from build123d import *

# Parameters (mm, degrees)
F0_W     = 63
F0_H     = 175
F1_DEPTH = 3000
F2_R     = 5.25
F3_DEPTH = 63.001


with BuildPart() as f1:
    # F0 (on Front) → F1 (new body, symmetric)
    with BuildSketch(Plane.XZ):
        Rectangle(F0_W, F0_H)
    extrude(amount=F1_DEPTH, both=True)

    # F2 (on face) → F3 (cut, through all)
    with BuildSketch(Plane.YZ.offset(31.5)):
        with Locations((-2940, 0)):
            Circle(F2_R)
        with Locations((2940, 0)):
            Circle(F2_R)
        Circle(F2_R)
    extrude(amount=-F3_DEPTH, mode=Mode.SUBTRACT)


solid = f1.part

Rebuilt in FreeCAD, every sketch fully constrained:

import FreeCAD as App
import Part
import Sketcher
from FreeCAD import Vector

doc = App.newDocument("Part")
body = doc.addObject("PartDesign::Body", "Body")

sketch1 = body.newObject("Sketcher::SketchObject", "Sketch")
sketch1.AttachmentSupport = (doc.getObject("XZ_Plane"), [""])
sketch1.MapMode = "FlatFace"
sketch1.addGeometry(Part.LineSegment(Vector(-32, 88, 0), Vector(-32, -88, 0)), False)
sketch1.addGeometry(Part.LineSegment(Vector(-32, -88, 0), Vector(32, -88, 0)), False)
sketch1.addGeometry(Part.LineSegment(Vector(32, -88, 0), Vector(32, 88, 0)), False)
sketch1.addGeometry(Part.LineSegment(Vector(32, 88, 0), Vector(-32, 88, 0)), False)
sketch1.addConstraint(Sketcher.Constraint("Coincident", 0, 2, 1, 1))
sketch1.addConstraint(Sketcher.Constraint("Coincident", 1, 2, 2, 1))
sketch1.addConstraint(Sketcher.Constraint("Coincident", 2, 2, 3, 1))
sketch1.addConstraint(Sketcher.Constraint("Coincident", 3, 2, 0, 1))
sketch1.addConstraint(Sketcher.Constraint("Vertical", 0))
sketch1.addConstraint(Sketcher.Constraint("Horizontal", 1))
sketch1.addConstraint(Sketcher.Constraint("Vertical", 2))
sketch1.addConstraint(Sketcher.Constraint("Horizontal", 3))
sketch1.addConstraint(Sketcher.Constraint("Symmetric", 0, 2, 2, 2, -1, 1))
sketch1.addConstraint(Sketcher.Constraint("DistanceX", 1, 1, 1, 2, 63.0))
sketch1.addConstraint(Sketcher.Constraint("DistanceY", 0, 2, 0, 1, 175.0))
pad1 = body.newObject("PartDesign::Pad", "Pad")
pad1.Profile = sketch1
pad1.Length = 6000
pad1.Midplane = True

sketch2 = body.newObject("Sketcher::SketchObject", "Sketch001")
sketch2.AttachmentSupport = (doc.getObject("YZ_Plane"), [""])
sketch2.MapMode = "FlatFace"
sketch2.AttachmentOffset = App.Placement(Vector(0, 0, 31.5), App.Rotation())
sketch2.addGeometry(Part.Circle(Vector(-2940, 0, 0), Vector(0, 0, 1), 5), False)
sketch2.addGeometry(Part.Circle(Vector(2940, 0, 0), Vector(0, 0, 1), 5), False)
sketch2.addGeometry(Part.Circle(Vector(0, 0, 0), Vector(0, 0, 1), 5), False)
sketch2.addConstraint(Sketcher.Constraint("Coincident", 2, 3, -1, 1))
sketch2.addConstraint(Sketcher.Constraint("Equal", 0, 1))
sketch2.addConstraint(Sketcher.Constraint("Equal", 1, 2))
sketch2.addConstraint(Sketcher.Constraint("Symmetric", 0, 3, 1, 3, -1, 1))
sketch2.addConstraint(Sketcher.Constraint("PointOnObject", 0, 3, -1))
sketch2.addConstraint(Sketcher.Constraint("Diameter", 0, 10.5))
sketch2.addConstraint(Sketcher.Constraint("DistanceX", 0, 3, -1, 1, 2940.0))
pocket1 = body.newObject("PartDesign::Pocket", "Pocket")
pocket1.Profile = sketch2
pocket1.Type = "ThroughAll"

doc.recompute()
